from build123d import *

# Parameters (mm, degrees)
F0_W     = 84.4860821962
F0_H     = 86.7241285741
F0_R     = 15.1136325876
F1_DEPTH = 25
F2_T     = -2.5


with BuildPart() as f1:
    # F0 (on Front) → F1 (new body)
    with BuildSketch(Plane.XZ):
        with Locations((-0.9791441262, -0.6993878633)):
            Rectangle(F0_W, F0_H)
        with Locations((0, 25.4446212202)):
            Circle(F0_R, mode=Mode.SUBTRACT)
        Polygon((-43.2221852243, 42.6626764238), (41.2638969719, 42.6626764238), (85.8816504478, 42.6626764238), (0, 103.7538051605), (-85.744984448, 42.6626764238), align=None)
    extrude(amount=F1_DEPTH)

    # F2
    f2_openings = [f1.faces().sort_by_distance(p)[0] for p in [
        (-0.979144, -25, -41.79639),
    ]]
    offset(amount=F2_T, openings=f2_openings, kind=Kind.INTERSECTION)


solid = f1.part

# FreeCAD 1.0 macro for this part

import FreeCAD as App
import Part
import Sketcher
from FreeCAD import Vector
Q = App.Units.Quantity


def faces_at(feature, points):
    """Names of the faces that lie closest to the given points."""
    faces = feature.Shape.Faces
    near = lambda p: min(range(len(faces)), key=lambda i: faces[i].distToShape(Part.Vertex(*p))[0])
    return sorted({f"Face{near(p) + 1}" for p in points})

doc = App.newDocument("Part")
body = doc.addObject("PartDesign::Body", "Body")

sketch1 = body.newObject("Sketcher::SketchObject", "Sketch")
sketch1.AttachmentSupport = (doc.getObject("XZ_Plane"), [""])
sketch1.MapMode = "FlatFace"
sketch1.addGeometry([
    Part.LineSegment(Vector(-43.222185, 42.662676, 0), Vector(-43.222185, -44.061452, 0)),
    Part.LineSegment(Vector(-43.222185, -44.061452, 0), Vector(41.263897, -44.061452, 0)),
    Part.LineSegment(Vector(41.263897, -44.061452, 0), Vector(41.263897, 42.662676, 0)),
    Part.LineSegment(Vector(41.263897, 42.662676, 0), Vector(85.88165, 42.662676, 0)),
    Part.LineSegment(Vector(85.88165, 42.662676, 0), Vector(0, 103.753805, 0)),
    Part.LineSegment(Vector(0, 103.753805, 0), Vector(-85.744984, 42.662676, 0)),
    Part.LineSegment(Vector(-85.744984, 42.662676, 0), Vector(-43.222185, 42.662676, 0)),
    Part.Circle(Vector(0, 25.444621, 0), Vector(0, 0, 1), 15.113633),
], False)
sketch1.addConstraint([
    Sketcher.Constraint("Coincident", 0, 2, 1, 1),
    Sketcher.Constraint("Coincident", 1, 2, 2, 1),
    Sketcher.Constraint("Coincident", 2, 2, 3, 1),
    Sketcher.Constraint("Coincident", 3, 2, 4, 1),
    Sketcher.Constraint("Coincident", 4, 2, 5, 1),
    Sketcher.Constraint("Coincident", 5, 2, 6, 1),
    Sketcher.Constraint("Coincident", 6, 2, 0, 1),
    Sketcher.Constraint("Vertical", 0),
    Sketcher.Constraint("Horizontal", 1),
    Sketcher.Constraint("Vertical", 2),
    Sketcher.Constraint("Horizontal", 3),
    Sketcher.Constraint("Horizontal", 6),
    Sketcher.Constraint("PointOnObject", 7, 3, -2),
    Sketcher.Constraint("PointOnObject", 4, 2, -2),
    Sketcher.Constraint("Horizontal", 3, 2, 5, 2),
    Sketcher.Constraint("Diameter", 7, Q("30.227265 mm")),
    Sketcher.Constraint("DistanceX", 6, 1, 6, 2, Q("42.522799 mm")),
    Sketcher.Constraint("DistanceY", 0, 2, 0, 1, Q("86.724129 mm")),
    Sketcher.Constraint("Distance", 4, Q("105.393472 mm")),
    Sketcher.Constraint("DistanceX", 1, 1, 1, 2, Q("84.486082 mm")),
    Sketcher.Constraint("DistanceX", 3, 1, 3, 2, Q("44.617753 mm")),
    Sketcher.Constraint("DistanceY", -1, 1, 7, 3, Q("25.444621 mm")),
    Sketcher.Constraint("DistanceX", -1, 1, 3, 2, Q("85.88165 mm")),
    Sketcher.Constraint("DistanceY", 0, 2, -1, 1, Q("44.061452 mm")),
])
pad1 = body.newObject("PartDesign::Pad", "Pad")
pad1.Profile = sketch1
pad1.Length = 25
doc.recompute()

thickness = body.newObject("PartDesign::Thickness", "Thickness")
thickness.Base = (pad1, faces_at(pad1, [(-34.257, -25, 0.283)]))
thickness.Value = 2.5
thickness.Reversed = True
thickness.Join = "Intersection"

doc.recompute()
